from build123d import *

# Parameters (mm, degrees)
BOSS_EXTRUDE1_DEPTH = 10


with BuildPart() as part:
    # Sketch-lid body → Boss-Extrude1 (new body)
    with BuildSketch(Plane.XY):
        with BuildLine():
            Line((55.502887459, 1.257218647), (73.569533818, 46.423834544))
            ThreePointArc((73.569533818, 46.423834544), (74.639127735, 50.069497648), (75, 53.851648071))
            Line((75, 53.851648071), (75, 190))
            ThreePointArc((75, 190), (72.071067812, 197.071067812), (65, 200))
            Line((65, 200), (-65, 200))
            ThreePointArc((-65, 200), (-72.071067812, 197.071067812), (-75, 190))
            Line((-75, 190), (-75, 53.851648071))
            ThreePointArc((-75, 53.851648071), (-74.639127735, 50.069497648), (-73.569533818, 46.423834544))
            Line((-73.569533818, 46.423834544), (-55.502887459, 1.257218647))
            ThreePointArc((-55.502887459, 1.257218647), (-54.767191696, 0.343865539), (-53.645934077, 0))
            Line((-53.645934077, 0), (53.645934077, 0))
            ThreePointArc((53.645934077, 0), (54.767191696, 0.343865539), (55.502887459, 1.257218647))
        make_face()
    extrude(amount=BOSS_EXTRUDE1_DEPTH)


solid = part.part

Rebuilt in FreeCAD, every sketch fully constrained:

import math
import FreeCAD as App
import Part
import Sketcher
Q = App.Units.Quantity

doc = App.newDocument("Part")
body = doc.addObject("PartDesign::Body", "Body")

# Sketch on XY plane
sketch1 = body.newObject("Sketcher::SketchObject", "Sketch")
sketch1.AttachmentSupport = (doc.getObject("XY_Plane"), [""])
sketch1.MapMode = "FlatFace"
sketch1.addGeometry(Part.LineSegment(App.Vector(55.5, 1.3, 0), App.Vector(73.6, 46.4, 0)), False)
sketch1.addGeometry(Part.ArcOfCircle(Part.Circle(App.Vector(55, 53.9, 0), App.Vector(0, 0, 1), 20), math.radians(-22), math.radians(0)), False)
sketch1.addGeometry(Part.LineSegment(App.Vector(75, 53.9, 0), App.Vector(75, 190, 0)), False)
sketch1.addGeometry(Part.ArcOfCircle(Part.Circle(App.Vector(65, 190, 0), App.Vector(0, 0, 1), 10), math.radians(0), math.radians(90)), False)
sketch1.addGeometry(Part.LineSegment(App.Vector(65, 200, 0), App.Vector(-65, 200, 0)), False)
sketch1.addGeometry(Part.ArcOfCircle(Part.Circle(App.Vector(-65, 190, 0), App.Vector(0, 0, 1), 10), math.radians(90), math.radians(180)), False)
sketch1.addGeometry(Part.LineSegment(App.Vector(-75, 190, 0), App.Vector(-75, 53.9, 0)), False)
sketch1.addGeometry(Part.ArcOfCircle(Part.Circle(App.Vector(-55, 53.9, 0), App.Vector(0, 0, 1), 20), math.radians(180), math.radians(202)), False)
sketch1.addGeometry(Part.LineSegment(App.Vector(-73.6, 46.4, 0), App.Vector(-55.5, 1.3, 0)), False)
sketch1.addGeometry(Part.ArcOfCircle(Part.Circle(App.Vector(-53.6, 2, 0), App.Vector(0, 0, 1), 2), math.radians(-158), math.radians(-90)), False)
sketch1.addGeometry(Part.LineSegment(App.Vector(-53.6, 0, 0), App.Vector(53.6, 0, 0)), False)
sketch1.addGeometry(Part.ArcOfCircle(Part.Circle(App.Vector(53.6, 2, 0), App.Vector(0, 0, 1), 2), math.radians(-90), math.radians(-22)), False)
sketch1.addConstraint(Sketcher.Constraint("Tangent", 0, 2, 1, 1))
sketch1.addConstraint(Sketcher.Constraint("Tangent", 1, 2, 2, 1))
sketch1.addConstraint(Sketcher.Constraint("Tangent", 2, 2, 3, 1))
sketch1.addConstraint(Sketcher.Constraint("Tangent", 3, 2, 4, 1))
sketch1.addConstraint(Sketcher.Constraint("Tangent", 4, 2, 5, 1))
sketch1.addConstraint(Sketcher.Constraint("Tangent", 5, 2, 6, 1))
sketch1.addConstraint(Sketcher.Constraint("Tangent", 6, 2, 7, 1))
sketch1.addConstraint(Sketcher.Constraint("Tangent", 7, 2, 8, 1))
sketch1.addConstraint(Sketcher.Constraint("Tangent", 8, 2, 9, 1))
sketch1.addConstraint(Sketcher.Constraint("Tangent", 9, 2, 10, 1))
sketch1.addConstraint(Sketcher.Constraint("Tangent", 10, 2, 11, 1))
sketch1.addConstraint(Sketcher.Constraint("Tangent", 11, 2, 0, 1))
sketch1.addConstraint(Sketcher.Constraint("Vertical", 2))
sketch1.addConstraint(Sketcher.Constraint("Horizontal", 4))
sketch1.addConstraint(Sketcher.Constraint("Vertical", 6))
sketch1.addConstraint(Sketcher.Constraint("Horizontal", 10))
sketch1.addConstraint(Sketcher.Constraint("Equal", 3, 5))
sketch1.addConstraint(Sketcher.Constraint("Equal", 1, 7))
sketch1.addConstraint(Sketcher.Constraint("Equal", 9, 11))
sketch1.addConstraint(Sketcher.Constraint("Symmetric", 9, 2, 10, 2, -1, 1))
sketch1.addConstraint(Sketcher.Constraint("Symmetric", 1, 3, 7, 3, -2))
sketch1.addConstraint(Sketcher.Constraint("Radius", 1, Q("20 mm")))
sketch1.addConstraint(Sketcher.Constraint("Radius", 3, Q("10 mm")))
sketch1.addConstraint(Sketcher.Constraint("Radius", 9, Q("2 mm")))
sketch1.addConstraint(Sketcher.Constraint("DistanceX", 4, 2, 4, 1, Q("130 mm")))
sketch1.addConstraint(Sketcher.Constraint("DistanceY", -1, 1, 3, 3, Q("190 mm")))
sketch1.addConstraint(Sketcher.Constraint("DistanceX", 10, 1, 10, 2, Q("107.291868 mm")))
sketch1.addConstraint(Sketcher.Constraint("DistanceY", 2, 1, 2, 2, Q("136.148352 mm")))
pad1 = body.newObject("PartDesign::Pad", "Pad")
pad1.Profile = sketch1
pad1.Length = 10

doc.recompute()
